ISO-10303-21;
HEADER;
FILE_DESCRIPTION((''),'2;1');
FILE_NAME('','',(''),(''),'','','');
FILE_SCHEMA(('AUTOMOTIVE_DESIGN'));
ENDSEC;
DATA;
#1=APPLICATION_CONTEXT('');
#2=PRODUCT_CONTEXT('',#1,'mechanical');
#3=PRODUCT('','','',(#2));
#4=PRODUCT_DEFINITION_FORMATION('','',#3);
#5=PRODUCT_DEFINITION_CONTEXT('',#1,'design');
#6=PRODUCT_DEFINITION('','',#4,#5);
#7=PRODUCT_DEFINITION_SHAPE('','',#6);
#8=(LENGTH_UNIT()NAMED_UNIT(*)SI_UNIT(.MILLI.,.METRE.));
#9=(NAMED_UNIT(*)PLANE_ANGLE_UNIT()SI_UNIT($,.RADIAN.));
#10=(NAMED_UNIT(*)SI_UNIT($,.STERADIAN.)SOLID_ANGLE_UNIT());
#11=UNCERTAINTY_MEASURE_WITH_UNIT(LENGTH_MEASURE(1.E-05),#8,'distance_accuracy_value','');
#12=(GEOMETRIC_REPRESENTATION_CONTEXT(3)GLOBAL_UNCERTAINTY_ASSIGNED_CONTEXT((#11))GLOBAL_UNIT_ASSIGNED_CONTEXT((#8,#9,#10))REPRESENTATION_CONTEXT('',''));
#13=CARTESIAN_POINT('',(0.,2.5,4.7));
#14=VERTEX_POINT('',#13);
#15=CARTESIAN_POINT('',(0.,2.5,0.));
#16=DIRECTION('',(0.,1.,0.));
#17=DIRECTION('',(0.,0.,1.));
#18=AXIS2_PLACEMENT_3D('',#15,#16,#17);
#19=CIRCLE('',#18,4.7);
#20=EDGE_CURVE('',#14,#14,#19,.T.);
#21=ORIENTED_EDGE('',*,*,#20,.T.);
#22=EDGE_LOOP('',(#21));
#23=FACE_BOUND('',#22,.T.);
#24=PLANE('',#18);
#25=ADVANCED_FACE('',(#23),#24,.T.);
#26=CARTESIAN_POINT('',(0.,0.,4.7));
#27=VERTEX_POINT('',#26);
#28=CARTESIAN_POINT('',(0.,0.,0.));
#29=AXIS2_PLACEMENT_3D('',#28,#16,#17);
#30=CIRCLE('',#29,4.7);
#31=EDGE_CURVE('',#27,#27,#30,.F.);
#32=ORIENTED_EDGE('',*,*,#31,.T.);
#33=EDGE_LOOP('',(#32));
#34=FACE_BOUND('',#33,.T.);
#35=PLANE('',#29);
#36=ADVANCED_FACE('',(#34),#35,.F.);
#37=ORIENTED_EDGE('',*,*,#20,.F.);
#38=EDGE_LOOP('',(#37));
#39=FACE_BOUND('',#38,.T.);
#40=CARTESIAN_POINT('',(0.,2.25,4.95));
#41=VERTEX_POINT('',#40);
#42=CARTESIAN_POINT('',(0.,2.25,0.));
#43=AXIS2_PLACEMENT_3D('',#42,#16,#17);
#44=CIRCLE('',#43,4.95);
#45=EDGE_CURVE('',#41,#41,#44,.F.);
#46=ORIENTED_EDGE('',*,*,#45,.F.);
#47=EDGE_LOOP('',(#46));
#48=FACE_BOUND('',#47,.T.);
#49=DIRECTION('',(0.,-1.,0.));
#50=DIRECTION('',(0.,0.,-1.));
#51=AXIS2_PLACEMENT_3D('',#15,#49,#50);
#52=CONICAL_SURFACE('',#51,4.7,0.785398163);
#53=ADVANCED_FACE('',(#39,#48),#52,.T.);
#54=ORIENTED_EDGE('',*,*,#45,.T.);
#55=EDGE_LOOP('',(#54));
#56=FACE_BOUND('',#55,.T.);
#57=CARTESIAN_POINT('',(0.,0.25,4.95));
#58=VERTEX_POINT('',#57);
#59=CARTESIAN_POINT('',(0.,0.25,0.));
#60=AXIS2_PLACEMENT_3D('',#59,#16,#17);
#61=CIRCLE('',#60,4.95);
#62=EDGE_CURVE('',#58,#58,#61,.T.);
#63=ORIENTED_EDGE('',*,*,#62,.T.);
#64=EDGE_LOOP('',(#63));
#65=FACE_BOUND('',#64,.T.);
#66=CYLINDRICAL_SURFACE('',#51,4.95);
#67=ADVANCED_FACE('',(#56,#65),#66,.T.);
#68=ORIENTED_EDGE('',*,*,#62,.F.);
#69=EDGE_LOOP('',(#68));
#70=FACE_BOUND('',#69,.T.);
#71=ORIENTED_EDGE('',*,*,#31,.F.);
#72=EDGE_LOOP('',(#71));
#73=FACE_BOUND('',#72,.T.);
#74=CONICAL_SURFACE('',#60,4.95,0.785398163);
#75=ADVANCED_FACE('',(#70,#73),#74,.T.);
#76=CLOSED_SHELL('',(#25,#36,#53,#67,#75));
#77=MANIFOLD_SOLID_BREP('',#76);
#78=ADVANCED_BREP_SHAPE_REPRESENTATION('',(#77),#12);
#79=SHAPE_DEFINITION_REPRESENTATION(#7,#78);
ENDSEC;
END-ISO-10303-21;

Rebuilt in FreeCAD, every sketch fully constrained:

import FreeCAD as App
import Part
import Sketcher
from FreeCAD import Vector


def edges_at(feature, points):
    """Names of the edges that pass closest to the given points."""
    edges = feature.Shape.Edges
    near = lambda p: min(range(len(edges)), key=lambda i: edges[i].distToShape(Part.Vertex(*p))[0])
    return sorted({f"Edge{near(p) + 1}" for p in points})

doc = App.newDocument("Part")
body = doc.addObject("PartDesign::Body", "Body")

# Sketch on XZ plane
sketch1 = body.newObject("Sketcher::SketchObject", "Sketch")
sketch1.AttachmentSupport = (doc.getObject("XZ_Plane"), [""])
sketch1.MapMode = "FlatFace"
sketch1.addGeometry(Part.Circle(Vector(0, 0, 0), Vector(0, 0, 1), 4.95), False)
sketch1.addConstraint(Sketcher.Constraint("Coincident", 0, 3, -1, 1))
sketch1.addConstraint(Sketcher.Constraint("Diameter", 0, 9.9))
pad1 = body.newObject("PartDesign::Pad", "Pad")
pad1.Profile = sketch1
pad1.Length = 2.5
pad1.Reversed = True
doc.recompute()

chamfer = body.newObject("PartDesign::Chamfer", "Chamfer")
chamfer.Base = (pad1, edges_at(pad1, [(-4.95, 0, 0), (-4.95, 2.5, 0)]))
chamfer.Size = 0.25

doc.recompute()
